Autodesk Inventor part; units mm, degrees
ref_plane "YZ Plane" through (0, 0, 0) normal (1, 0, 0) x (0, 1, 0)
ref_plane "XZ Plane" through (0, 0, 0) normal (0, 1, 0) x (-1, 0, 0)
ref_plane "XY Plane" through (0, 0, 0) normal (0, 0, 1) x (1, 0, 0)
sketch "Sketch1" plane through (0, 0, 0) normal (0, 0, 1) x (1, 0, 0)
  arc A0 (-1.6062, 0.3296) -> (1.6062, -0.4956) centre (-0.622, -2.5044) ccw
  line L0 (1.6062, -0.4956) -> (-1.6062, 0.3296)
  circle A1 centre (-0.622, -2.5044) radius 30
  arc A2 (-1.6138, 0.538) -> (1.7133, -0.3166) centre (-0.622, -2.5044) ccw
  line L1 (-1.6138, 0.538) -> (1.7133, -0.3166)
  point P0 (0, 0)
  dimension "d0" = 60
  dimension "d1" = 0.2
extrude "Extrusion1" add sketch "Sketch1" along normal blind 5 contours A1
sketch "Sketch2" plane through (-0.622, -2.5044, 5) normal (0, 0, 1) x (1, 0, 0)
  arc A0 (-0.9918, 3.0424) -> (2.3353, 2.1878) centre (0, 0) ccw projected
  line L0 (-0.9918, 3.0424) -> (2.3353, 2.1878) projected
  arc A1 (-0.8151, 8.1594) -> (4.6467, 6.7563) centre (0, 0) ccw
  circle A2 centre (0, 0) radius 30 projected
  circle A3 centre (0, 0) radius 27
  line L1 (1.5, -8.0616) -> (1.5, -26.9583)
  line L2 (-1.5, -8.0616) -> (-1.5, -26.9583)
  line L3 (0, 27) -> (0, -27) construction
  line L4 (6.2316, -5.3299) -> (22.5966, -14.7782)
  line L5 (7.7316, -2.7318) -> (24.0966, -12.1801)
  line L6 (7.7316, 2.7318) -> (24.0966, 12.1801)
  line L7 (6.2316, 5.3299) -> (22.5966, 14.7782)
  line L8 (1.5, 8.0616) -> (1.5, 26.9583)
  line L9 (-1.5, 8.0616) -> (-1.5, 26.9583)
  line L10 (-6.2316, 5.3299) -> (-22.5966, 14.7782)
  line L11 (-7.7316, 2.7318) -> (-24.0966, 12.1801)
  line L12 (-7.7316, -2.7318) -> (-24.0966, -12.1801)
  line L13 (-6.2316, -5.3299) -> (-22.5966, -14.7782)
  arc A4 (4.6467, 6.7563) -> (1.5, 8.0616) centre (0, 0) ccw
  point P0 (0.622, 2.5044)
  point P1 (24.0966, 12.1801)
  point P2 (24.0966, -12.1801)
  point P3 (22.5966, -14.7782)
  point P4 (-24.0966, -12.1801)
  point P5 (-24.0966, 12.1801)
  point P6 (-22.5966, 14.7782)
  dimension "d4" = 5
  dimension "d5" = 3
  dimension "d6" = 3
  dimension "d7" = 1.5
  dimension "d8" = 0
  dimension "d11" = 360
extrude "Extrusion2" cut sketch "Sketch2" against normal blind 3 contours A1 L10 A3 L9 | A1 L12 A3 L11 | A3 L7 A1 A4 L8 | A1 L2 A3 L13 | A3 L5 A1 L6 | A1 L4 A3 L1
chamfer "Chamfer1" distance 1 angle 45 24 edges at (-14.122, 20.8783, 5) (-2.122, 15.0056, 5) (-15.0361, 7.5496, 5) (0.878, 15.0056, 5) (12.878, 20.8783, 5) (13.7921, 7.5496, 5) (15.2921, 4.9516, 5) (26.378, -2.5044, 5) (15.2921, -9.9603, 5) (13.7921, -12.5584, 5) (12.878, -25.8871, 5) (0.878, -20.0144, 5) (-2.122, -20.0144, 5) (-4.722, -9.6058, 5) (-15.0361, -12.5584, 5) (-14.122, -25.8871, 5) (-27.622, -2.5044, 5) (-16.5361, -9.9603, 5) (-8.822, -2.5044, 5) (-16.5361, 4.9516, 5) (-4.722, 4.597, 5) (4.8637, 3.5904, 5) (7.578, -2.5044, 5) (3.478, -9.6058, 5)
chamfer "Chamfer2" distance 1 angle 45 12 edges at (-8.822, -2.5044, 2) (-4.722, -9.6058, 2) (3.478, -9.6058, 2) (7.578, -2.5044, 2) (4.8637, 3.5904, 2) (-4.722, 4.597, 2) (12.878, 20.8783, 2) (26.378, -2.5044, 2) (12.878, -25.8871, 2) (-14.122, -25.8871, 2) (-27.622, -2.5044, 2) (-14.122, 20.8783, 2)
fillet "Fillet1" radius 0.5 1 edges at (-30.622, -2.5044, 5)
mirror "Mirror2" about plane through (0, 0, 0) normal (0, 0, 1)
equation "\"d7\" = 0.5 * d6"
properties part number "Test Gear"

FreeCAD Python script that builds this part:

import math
import FreeCAD as App
import Part
import Sketcher

V = App.Vector
Q = App.Units.Quantity


def edges_at(feature, points):
    """Names of the edges that pass closest to the given points."""
    edges = feature.Shape.Edges
    near = lambda p: min(range(len(edges)), key=lambda i: edges[i].distToShape(Part.Vertex(*p))[0])
    return sorted({f"Edge{near(p) + 1}" for p in points})

doc = App.newDocument("Part")
params = doc.addObject("Spreadsheet::Sheet", "Params")
for row, (alias, value) in enumerate([
    ("sketch1_diameter", "60 mm"),
    ("sketch1_radius", "3.2 mm"),
    ("pad1_length", "5 mm"),
    ("sketch2_radius", "27 mm"),
    ("sketch2_radius2", "8.2 mm"),
    ("pocket1_length", "3 mm"),
    ("chamfer_size", "1 mm"),
    ("chamfer2_size", "1 mm"),
    ("fillet_radius", "0.5 mm"),
], start=1):
    params.set(f"A{row}", alias)
    params.set(f"B{row}", "=" + value)
    params.setAlias(f"B{row}", alias)

body = doc.addObject("PartDesign::Body", "Body")

# Sketch on XY plane
sketch1 = body.newObject("Sketcher::SketchObject", "Sketch")
sketch1.AttachmentSupport = (doc.getObject("XY_Plane"), [""])
sketch1.MapMode = "FlatFace"
sketch1.addGeometry(Part.Circle(V(-0.6, -2.5, 0), V(0, 0, 1), 30), False)
sketch1.addGeometry(Part.ArcOfCircle(Part.Circle(V(-0.6, -2.5, 0), V(0, 0, 1), 3.2), math.radians(108), math.radians(403)), False)
sketch1.addGeometry(Part.LineSegment(V(-1.6, 0.5, 0), V(1.7, -0.3, 0)), False)
sketch1.addConstraint(Sketcher.Constraint("Coincident", 1, 1, 2, 1))
sketch1.addConstraint(Sketcher.Constraint("Coincident", 2, 2, 1, 2))
sketch1.addConstraint(Sketcher.Constraint("Coincident", 1, 3, 0, 3))
sketch1.addConstraint(Sketcher.Constraint("Diameter", 0, 60.0))
sketch1.addConstraint(Sketcher.Constraint("Radius", 1, 3.2))
sketch1.addConstraint(Sketcher.Constraint("Distance", 2, 3.435))
sketch1.addConstraint(Sketcher.Constraint("DistanceX", 0, 3, -1, 1, 0.622))
sketch1.addConstraint(Sketcher.Constraint("DistanceY", -1, 1, 1, 1, 0.538))
sketch1.addConstraint(Sketcher.Constraint("DistanceX", 1, 1, 2, 2, 3.327))
sketch1.setExpression("Constraints[3]", "Params.sketch1_diameter")
sketch1.setExpression("Constraints[4]", "Params.sketch1_radius")
pad1 = body.newObject("PartDesign::Pad", "Pad")
pad1.Profile = sketch1
pad1.setExpression("Length", "Params.pad1_length")

# Sketch on XY plane
sketch2 = body.newObject("Sketcher::SketchObject", "Sketch001")
sketch2.AttachmentSupport = (doc.getObject("XY_Plane"), [""])
sketch2.MapMode = "FlatFace"
sketch2.AttachmentOffset = App.Placement(V(0, 0, 5), App.Rotation())
sketch2.addGeometry(Part.ArcOfCircle(Part.Circle(V(-0.6, -2.5, 0), V(0, 0, 1), 8.2), math.radians(101), math.radians(139)), False)
sketch2.addGeometry(Part.LineSegment(V(-2.1, 5.6, 0), V(-2.1, 24.5, 0)), False)
sketch2.addGeometry(Part.ArcOfCircle(Part.Circle(V(-0.6, -2.5, 0), V(0, 0, 1), 27), math.radians(93), math.radians(147)), False)
sketch2.addGeometry(Part.LineSegment(V(-23.2, 12.3, 0), V(-6.9, 2.8, 0)), False)
sketch2.addGeometry(Part.ArcOfCircle(Part.Circle(V(-0.6, -2.5, 0), V(0, 0, 1), 8.2), math.radians(161), math.radians(199)), False)
sketch2.addGeometry(Part.LineSegment(V(-8.4, 0.2, 0), V(-24.7, 9.7, 0)), False)
sketch2.addGeometry(Part.ArcOfCircle(Part.Circle(V(-0.6, -2.5, 0), V(0, 0, 1), 27), math.radians(153), math.radians(207)), False)
sketch2.addGeometry(Part.LineSegment(V(-24.7, -14.7, 0), V(-8.4, -5.2, 0)), False)
sketch2.addGeometry(Part.ArcOfCircle(Part.Circle(V(-0.6, -2.5, 0), V(0, 0, 1), 27), math.radians(33), math.radians(87)), False)
sketch2.addGeometry(Part.LineSegment(V(0.9, 24.5, 0), V(0.9, 5.6, 0)), False)
sketch2.addGeometry(Part.ArcOfCircle(Part.Circle(V(-0.6, -2.5, 0), V(0, 0, 1), 8.2), math.radians(55), math.radians(79)), False)
sketch2.addGeometry(Part.ArcOfCircle(Part.Circle(V(-0.6, -2.5, 0), V(0, 0, 1), 8.2), math.radians(40.54), math.radians(55.48)), False)
sketch2.addGeometry(Part.LineSegment(V(5.6, 2.8, 0), V(22, 12.3, 0)), False)
sketch2.addGeometry(Part.ArcOfCircle(Part.Circle(V(-0.6, -2.5, 0), V(0, 0, 1), 8.2), math.radians(-139), math.radians(-101)), False)
sketch2.addGeometry(Part.LineSegment(V(-6.9, -7.8, 0), V(-23.2, -17.3, 0)), False)
sketch2.addGeometry(Part.ArcOfCircle(Part.Circle(V(-0.6, -2.5, 0), V(0, 0, 1), 27), math.radians(-147), math.radians(-93)), False)
sketch2.addGeometry(Part.LineSegment(V(-2.1, -29.5, 0), V(-2.1, -10.6, 0)), False)
sketch2.addGeometry(Part.ArcOfCircle(Part.Circle(V(-0.6, -2.5, 0), V(0, 0, 1), 27), math.radians(-27), math.radians(27)), False)
sketch2.addGeometry(Part.LineSegment(V(23.5, 9.7, 0), V(7.1, 0.2, 0)), False)
sketch2.addGeometry(Part.ArcOfCircle(Part.Circle(V(-0.6, -2.5, 0), V(0, 0, 1), 8.2), math.radians(-19), math.radians(19)), False)
sketch2.addGeometry(Part.LineSegment(V(7.1, -5.2, 0), V(23.5, -14.7, 0)), False)
sketch2.addGeometry(Part.ArcOfCircle(Part.Circle(V(-0.6, -2.5, 0), V(0, 0, 1), 8.2), math.radians(-79), math.radians(-41)), False)
sketch2.addGeometry(Part.LineSegment(V(0.9, -10.6, 0), V(0.9, -29.5, 0)), False)
sketch2.addGeometry(Part.ArcOfCircle(Part.Circle(V(-0.6, -2.5, 0), V(0, 0, 1), 27), math.radians(-87), math.radians(-33)), False)
sketch2.addGeometry(Part.LineSegment(V(22, -17.3, 0), V(5.6, -7.8, 0)), False)
sketch2.addConstraint(Sketcher.Constraint("Coincident", 0, 1, 1, 1))
sketch2.addConstraint(Sketcher.Constraint("Coincident", 1, 2, 2, 1))
sketch2.addConstraint(Sketcher.Constraint("Coincident", 2, 2, 3, 1))
sketch2.addConstraint(Sketcher.Constraint("Coincident", 3, 2, 0, 2))
sketch2.addConstraint(Sketcher.Constraint("Coincident", 4, 1, 5, 1))
sketch2.addConstraint(Sketcher.Constraint("Coincident", 5, 2, 6, 1))
sketch2.addConstraint(Sketcher.Constraint("Coincident", 6, 2, 7, 1))
sketch2.addConstraint(Sketcher.Constraint("Coincident", 7, 2, 4, 2))
sketch2.addConstraint(Sketcher.Constraint("Coincident", 8, 2, 9, 1))
sketch2.addConstraint(Sketcher.Constraint("Coincident", 9, 2, 10, 2))
sketch2.addConstraint(Sketcher.Constraint("Tangent", 10, 1, 11, 2))
sketch2.addConstraint(Sketcher.Constraint("Coincident", 11, 1, 12, 1))
sketch2.addConstraint(Sketcher.Constraint("Coincident", 12, 2, 8, 1))
sketch2.addConstraint(Sketcher.Constraint("Coincident", 13, 1, 14, 1))
sketch2.addConstraint(Sketcher.Constraint("Coincident", 14, 2, 15, 1))
sketch2.addConstraint(Sketcher.Constraint("Coincident", 15, 2, 16, 1))
sketch2.addConstraint(Sketcher.Constraint("Coincident", 16, 2, 13, 2))
sketch2.addConstraint(Sketcher.Constraint("Coincident", 17, 2, 18, 1))
sketch2.addConstraint(Sketcher.Constraint("Coincident", 18, 2, 19, 2))
sketch2.addConstraint(Sketcher.Constraint("Coincident", 19, 1, 20, 1))
sketch2.addConstraint(Sketcher.Constraint("Coincident", 20, 2, 17, 1))
sketch2.addConstraint(Sketcher.Constraint("Coincident", 21, 1, 22, 1))
sketch2.addConstraint(Sketcher.Constraint("Coincident", 22, 2, 23, 1))
sketch2.addConstraint(Sketcher.Constraint("Coincident", 23, 2, 24, 1))
sketch2.addConstraint(Sketcher.Constraint("Coincident", 24, 2, 21, 2))
sketch2.addConstraint(Sketcher.Constraint("Vertical", 1))
sketch2.addConstraint(Sketcher.Constraint("Vertical", 9))
sketch2.addConstraint(Sketcher.Constraint("Vertical", 16))
sketch2.addConstraint(Sketcher.Constraint("Vertical", 22))
sketch2.addConstraint(Sketcher.Constraint("Coincident", 2, 3, 0, 3))
sketch2.addConstraint(Sketcher.Constraint("Coincident", 4, 3, 0, 3))
sketch2.addConstraint(Sketcher.Constraint("Coincident", 6, 3, 0, 3))
sketch2.addConstraint(Sketcher.Constraint("Coincident", 8, 3, 0, 3))
sketch2.addConstraint(Sketcher.Constraint("Coincident", 10, 3, 0, 3))
sketch2.addConstraint(Sketcher.Constraint("Coincident", 13, 3, 0, 3))
sketch2.addConstraint(Sketcher.Constraint("Coincident", 15, 3, 0, 3))
sketch2.addConstraint(Sketcher.Constraint("Coincident", 17, 3, 0, 3))
sketch2.addConstraint(Sketcher.Constraint("Coincident", 19, 3, 0, 3))
sketch2.addConstraint(Sketcher.Constraint("Coincident", 21, 3, 0, 3))
sketch2.addConstraint(Sketcher.Constraint("Coincident", 23, 3, 0, 3))
sketch2.addConstraint(Sketcher.Constraint("Equal", 0, 4))
sketch2.addConstraint(Sketcher.Constraint("Equal", 2, 6))
sketch2.addConstraint(Sketcher.Constraint("Equal", 6, 8))
sketch2.addConstraint(Sketcher.Constraint("Equal", 4, 10))
sketch2.addConstraint(Sketcher.Constraint("Equal", 10, 11))
sketch2.addConstraint(Sketcher.Constraint("Equal", 11, 13))
sketch2.addConstraint(Sketcher.Constraint("Equal", 8, 15))
sketch2.addConstraint(Sketcher.Constraint("Equal", 15, 17))
sketch2.addConstraint(Sketcher.Constraint("Equal", 13, 19))
sketch2.addConstraint(Sketcher.Constraint("Equal", 19, 21))
sketch2.addConstraint(Sketcher.Constraint("Equal", 17, 23))
sketch2.addConstraint(Sketcher.Constraint("Parallel", 3, 5))
sketch2.addConstraint(Sketcher.Constraint("Parallel", 7, 12))
sketch2.addConstraint(Sketcher.Constraint("Parallel", 12, 14))
sketch2.addConstraint(Sketcher.Constraint("Parallel", 14, 18))
sketch2.addConstraint(Sketcher.Constraint("Parallel", 5, 20))
sketch2.addConstraint(Sketcher.Constraint("Parallel", 20, 24))
sketch2.addConstraint(Sketcher.Constraint("Horizontal", 1, 2, 8, 2))
sketch2.addConstraint(Sketcher.Constraint("Horizontal", 3, 2, 11, 1))
sketch2.addConstraint(Sketcher.Constraint("Horizontal", 2, 2, 12, 2))
sketch2.addConstraint(Sketcher.Constraint("Horizontal", 5, 2, 17, 2))
sketch2.addConstraint(Sketcher.Constraint("Horizontal", 7, 2, 19, 1))
sketch2.addConstraint(Sketcher.Constraint("Horizontal", 16, 2, 21, 1))
sketch2.addConstraint(Sketcher.Constraint("Horizontal", 14, 2, 23, 2))
sketch2.addConstraint(Sketcher.Constraint("Vertical", 5, 2, 6, 2))
sketch2.addConstraint(Sketcher.Constraint("Vertical", 3, 2, 13, 1))
sketch2.addConstraint(Sketcher.Constraint("Vertical", 1, 2, 15, 2))
sketch2.addConstraint(Sketcher.Constraint("Equal", 3, 5))
sketch2.addConstraint(Sketcher.Constraint("Radius", 2, 27.0))
sketch2.addConstraint(Sketcher.Constraint("DistanceX", 1, 2, 8, 2, 3.0))
sketch2.addConstraint(Sketcher.Constraint("Radius", 0, 8.2))
sketch2.addConstraint(Sketcher.Constraint("DistanceX", 4, 1, 3, 2, 1.5))
sketch2.addConstraint(Sketcher.Constraint("Angle", 3, Q("-30 deg")))
sketch2.addConstraint(Sketcher.Constraint("DistanceX", 10, 1, 12, 2, 17.95))
sketch2.addConstraint(Sketcher.Constraint("DistanceX", 0, 3, -1, 1, 0.622))
sketch2.addConstraint(Sketcher.Constraint("DistanceY", -1, 1, 1, 2, 24.454))
sketch2.setExpression("Constraints[68]", "Params.sketch2_radius")
sketch2.setExpression("Constraints[70]", "Params.sketch2_radius2")
pocket1 = body.newObject("PartDesign::Pocket", "Pocket")
pocket1.Profile = sketch2
pocket1.setExpression("Length", "Params.pocket1_length")
doc.recompute()

chamfer = body.newObject("PartDesign::Chamfer", "Chamfer")
chamfer.Base = (pocket1, edges_at(pocket1, [
    (-14.122, 20.878, 5),
    (-2.122, 15.006, 5),
    (-15.036, 7.55, 5),
    (0.878, 15.006, 5),
    (12.878, 20.878, 5),
    (13.792, 7.55, 5),
    (15.292, 4.952, 5),
    (26.378, -2.504, 5),
    (15.292, -9.96, 5),
    (13.792, -12.558, 5),
    (12.878, -25.887, 5),
    (0.878, -20.014, 5),
    (-2.122, -20.014, 5),
    (-4.722, -9.606, 5),
    (-15.036, -12.558, 5),
    (-14.122, -25.887, 5),
    (-27.622, -2.504, 5),
    (-16.536, -9.96, 5),
    (-8.822, -2.504, 5),
    (-16.536, 4.952, 5),
    (-4.722, 4.597, 5),
    (4.864, 3.59, 5),
    (7.578, -2.504, 5),
    (3.478, -9.606, 5),
]))
chamfer.setExpression("Size", "Params.chamfer_size")
doc.recompute()

chamfer2 = body.newObject("PartDesign::Chamfer", "Chamfer001")
chamfer2.Base = (chamfer, edges_at(chamfer, [
    (-8.822, -2.504, 2),
    (-4.722, -9.606, 2),
    (3.478, -9.606, 2),
    (7.578, -2.504, 2),
    (4.864, 3.59, 2),
    (-4.722, 4.597, 2),
    (12.878, 20.878, 2),
    (26.378, -2.504, 2),
    (12.878, -25.887, 2),
    (-14.122, -25.887, 2),
    (-27.622, -2.504, 2),
    (-14.122, 20.878, 2),
]))
chamfer2.setExpression("Size", "Params.chamfer2_size")
doc.recompute()

fillet = body.newObject("PartDesign::Fillet", "Fillet")
fillet.Base = (chamfer2, edges_at(chamfer2, [(-30.622, -2.504, 5)]))
fillet.setExpression("Radius", "Params.fillet_radius")
doc.recompute()

mirrored = body.newObject("PartDesign::Mirrored", "Mirrored")
mirrored.TransformMode = "Transform body"
mirrored.MirrorPlane = (doc.getObject("XY_Plane"), [""])
body.Tip = mirrored

doc.recompute()
